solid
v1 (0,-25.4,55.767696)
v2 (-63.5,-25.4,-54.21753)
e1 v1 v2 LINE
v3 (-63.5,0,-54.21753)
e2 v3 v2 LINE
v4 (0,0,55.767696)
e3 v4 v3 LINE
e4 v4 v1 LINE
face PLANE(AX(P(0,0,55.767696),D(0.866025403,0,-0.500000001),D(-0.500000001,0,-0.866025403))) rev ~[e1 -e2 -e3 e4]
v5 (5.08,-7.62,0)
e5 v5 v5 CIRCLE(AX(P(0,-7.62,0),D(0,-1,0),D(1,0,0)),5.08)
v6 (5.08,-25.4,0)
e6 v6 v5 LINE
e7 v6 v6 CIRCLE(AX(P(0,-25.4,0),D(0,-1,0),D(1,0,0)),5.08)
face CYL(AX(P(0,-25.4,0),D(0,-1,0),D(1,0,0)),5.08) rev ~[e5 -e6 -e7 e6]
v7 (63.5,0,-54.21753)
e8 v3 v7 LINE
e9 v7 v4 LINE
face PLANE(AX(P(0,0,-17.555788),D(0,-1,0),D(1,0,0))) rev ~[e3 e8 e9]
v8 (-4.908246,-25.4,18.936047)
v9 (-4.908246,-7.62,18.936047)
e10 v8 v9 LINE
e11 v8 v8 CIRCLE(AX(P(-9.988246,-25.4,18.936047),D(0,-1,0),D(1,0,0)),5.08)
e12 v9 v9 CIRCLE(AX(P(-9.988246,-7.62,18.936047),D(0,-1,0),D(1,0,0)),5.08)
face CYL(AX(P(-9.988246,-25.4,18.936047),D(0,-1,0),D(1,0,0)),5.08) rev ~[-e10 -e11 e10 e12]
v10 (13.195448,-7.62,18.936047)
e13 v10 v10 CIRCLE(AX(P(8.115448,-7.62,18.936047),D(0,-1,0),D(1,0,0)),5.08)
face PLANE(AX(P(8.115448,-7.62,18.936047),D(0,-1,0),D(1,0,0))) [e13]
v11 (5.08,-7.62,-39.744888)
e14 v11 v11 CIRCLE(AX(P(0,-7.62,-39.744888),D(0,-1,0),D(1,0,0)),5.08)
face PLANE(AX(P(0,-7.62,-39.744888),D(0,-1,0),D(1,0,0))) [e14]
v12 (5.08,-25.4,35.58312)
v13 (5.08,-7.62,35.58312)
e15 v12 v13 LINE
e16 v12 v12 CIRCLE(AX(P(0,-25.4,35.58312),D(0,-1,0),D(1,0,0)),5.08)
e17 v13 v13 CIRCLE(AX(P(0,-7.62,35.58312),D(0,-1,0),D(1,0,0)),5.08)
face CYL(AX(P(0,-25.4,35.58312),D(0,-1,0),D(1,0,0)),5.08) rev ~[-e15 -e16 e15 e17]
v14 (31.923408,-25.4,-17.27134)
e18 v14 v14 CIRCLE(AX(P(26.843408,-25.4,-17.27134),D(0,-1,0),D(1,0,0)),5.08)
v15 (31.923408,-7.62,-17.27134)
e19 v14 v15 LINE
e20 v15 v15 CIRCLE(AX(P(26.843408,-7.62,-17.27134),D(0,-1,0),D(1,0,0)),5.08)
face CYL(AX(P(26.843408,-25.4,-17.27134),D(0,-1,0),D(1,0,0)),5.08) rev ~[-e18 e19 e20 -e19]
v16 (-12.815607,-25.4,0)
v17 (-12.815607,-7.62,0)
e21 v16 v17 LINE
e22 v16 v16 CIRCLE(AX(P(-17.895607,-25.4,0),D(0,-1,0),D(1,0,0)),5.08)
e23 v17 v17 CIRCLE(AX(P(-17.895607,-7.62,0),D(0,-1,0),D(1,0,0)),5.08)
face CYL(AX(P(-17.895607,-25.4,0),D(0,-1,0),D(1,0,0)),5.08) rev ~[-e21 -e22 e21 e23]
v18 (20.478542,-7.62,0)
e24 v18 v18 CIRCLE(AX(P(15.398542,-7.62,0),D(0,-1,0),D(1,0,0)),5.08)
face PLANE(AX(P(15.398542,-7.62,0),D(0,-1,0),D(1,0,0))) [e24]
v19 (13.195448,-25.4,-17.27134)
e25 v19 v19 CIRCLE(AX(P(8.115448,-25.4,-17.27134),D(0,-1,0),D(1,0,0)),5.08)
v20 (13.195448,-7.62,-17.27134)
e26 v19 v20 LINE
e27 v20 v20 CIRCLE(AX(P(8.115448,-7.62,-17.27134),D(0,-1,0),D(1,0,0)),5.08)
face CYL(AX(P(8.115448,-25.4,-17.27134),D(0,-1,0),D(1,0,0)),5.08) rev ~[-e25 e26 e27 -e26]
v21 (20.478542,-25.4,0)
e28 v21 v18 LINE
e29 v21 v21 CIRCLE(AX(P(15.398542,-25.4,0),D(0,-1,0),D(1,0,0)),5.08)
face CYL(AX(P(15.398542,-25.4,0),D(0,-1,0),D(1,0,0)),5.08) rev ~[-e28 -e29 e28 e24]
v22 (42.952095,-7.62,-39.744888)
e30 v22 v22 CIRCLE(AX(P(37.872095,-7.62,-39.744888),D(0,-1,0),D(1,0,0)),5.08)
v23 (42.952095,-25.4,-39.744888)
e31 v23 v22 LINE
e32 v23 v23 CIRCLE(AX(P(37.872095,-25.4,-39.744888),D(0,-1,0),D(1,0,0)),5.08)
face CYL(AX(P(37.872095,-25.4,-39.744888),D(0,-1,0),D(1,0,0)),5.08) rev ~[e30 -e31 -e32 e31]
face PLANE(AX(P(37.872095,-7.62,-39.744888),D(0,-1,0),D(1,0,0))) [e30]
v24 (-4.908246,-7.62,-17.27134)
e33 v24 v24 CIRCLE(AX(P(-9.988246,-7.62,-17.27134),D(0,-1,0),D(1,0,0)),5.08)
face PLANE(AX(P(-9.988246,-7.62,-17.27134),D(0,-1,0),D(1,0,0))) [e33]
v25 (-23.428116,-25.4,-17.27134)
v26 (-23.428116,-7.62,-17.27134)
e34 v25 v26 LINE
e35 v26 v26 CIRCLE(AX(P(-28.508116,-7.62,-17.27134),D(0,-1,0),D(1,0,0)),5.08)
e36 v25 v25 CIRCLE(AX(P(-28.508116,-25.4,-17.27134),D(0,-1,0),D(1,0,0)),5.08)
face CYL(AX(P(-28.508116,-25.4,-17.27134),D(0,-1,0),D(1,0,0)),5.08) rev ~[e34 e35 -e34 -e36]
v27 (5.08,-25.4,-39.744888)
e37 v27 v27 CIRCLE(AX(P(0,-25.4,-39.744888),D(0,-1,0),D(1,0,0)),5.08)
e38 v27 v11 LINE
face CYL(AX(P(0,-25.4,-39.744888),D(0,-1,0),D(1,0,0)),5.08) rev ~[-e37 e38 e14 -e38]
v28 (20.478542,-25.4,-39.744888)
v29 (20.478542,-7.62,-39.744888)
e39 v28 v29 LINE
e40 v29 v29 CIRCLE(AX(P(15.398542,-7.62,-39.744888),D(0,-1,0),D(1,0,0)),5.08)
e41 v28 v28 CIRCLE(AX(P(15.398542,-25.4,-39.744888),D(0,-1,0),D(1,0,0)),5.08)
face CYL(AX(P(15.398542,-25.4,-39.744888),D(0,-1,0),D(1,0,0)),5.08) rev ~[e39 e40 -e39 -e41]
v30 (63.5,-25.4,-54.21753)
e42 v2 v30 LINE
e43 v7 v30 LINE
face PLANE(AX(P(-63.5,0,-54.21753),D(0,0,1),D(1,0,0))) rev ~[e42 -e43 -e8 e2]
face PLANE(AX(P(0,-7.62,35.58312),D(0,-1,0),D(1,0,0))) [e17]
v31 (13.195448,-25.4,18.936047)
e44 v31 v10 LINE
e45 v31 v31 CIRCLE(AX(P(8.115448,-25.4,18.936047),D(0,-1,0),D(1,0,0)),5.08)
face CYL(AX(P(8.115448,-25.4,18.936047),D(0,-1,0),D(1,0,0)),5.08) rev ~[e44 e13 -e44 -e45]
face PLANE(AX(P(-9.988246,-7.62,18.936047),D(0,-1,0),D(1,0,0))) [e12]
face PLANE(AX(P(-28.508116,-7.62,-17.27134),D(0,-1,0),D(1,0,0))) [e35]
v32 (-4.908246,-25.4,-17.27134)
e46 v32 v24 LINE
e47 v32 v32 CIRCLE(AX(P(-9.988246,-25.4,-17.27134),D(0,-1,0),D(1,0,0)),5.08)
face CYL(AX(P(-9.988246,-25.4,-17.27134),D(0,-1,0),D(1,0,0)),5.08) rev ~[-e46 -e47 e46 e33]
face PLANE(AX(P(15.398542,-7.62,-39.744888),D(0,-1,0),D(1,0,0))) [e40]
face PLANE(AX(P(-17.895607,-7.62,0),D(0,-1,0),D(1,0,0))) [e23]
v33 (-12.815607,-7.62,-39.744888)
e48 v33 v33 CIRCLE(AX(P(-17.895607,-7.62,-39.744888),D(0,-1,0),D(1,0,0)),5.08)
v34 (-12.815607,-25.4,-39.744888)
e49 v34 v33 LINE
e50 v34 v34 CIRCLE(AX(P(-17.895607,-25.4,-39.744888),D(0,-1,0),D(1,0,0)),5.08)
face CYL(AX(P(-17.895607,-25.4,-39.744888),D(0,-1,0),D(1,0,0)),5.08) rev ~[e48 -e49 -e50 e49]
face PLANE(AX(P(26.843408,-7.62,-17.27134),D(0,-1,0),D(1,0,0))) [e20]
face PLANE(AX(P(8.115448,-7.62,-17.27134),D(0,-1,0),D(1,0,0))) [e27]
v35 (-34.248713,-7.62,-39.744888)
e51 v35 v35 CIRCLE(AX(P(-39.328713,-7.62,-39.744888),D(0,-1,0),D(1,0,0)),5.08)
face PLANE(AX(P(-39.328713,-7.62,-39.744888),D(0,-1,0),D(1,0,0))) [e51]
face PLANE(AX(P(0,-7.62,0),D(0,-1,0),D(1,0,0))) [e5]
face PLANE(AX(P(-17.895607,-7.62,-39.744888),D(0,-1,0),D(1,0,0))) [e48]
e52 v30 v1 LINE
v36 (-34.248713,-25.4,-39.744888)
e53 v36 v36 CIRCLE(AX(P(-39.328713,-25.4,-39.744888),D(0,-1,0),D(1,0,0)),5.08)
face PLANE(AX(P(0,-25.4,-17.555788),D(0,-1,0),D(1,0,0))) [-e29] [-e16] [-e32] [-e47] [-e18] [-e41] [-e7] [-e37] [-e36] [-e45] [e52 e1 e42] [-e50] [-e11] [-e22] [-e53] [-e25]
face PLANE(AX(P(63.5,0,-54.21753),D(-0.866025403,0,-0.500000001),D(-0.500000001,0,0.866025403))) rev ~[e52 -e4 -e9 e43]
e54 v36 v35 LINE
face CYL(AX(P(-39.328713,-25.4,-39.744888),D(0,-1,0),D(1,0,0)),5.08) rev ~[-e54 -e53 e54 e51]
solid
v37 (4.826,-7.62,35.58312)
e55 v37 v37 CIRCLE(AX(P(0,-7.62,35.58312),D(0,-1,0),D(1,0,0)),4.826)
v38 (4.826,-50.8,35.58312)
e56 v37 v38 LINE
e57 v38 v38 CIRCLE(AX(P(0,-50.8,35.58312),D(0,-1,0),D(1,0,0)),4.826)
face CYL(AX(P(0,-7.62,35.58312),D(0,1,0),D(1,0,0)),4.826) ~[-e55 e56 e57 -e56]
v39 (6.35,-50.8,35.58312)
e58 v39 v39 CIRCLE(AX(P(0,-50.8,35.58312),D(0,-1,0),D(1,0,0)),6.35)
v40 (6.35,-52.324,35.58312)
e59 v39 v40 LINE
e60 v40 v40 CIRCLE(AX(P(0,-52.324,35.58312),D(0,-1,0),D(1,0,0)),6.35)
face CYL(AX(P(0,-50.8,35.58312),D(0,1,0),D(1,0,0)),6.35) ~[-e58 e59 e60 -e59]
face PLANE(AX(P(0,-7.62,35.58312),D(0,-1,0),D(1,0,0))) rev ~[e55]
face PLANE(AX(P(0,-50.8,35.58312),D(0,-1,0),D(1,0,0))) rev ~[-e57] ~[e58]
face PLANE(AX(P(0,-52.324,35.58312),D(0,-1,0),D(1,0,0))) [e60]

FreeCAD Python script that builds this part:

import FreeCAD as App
import Part
import Sketcher
Q = App.Units.Quantity

doc = App.newDocument("Part")
body = doc.addObject("PartDesign::Body", "Body")

# Sketch on XZ plane
sketch1 = doc.addObject("Sketcher::SketchObject", "Sketch")
body.addObject(sketch1)
sketch1.AttachmentSupport = (doc.XZ_Plane, [""])
sketch1.MapMode = "FlatFace"
sketch1.addGeometry(Part.LineSegment(App.Vector(64, -54, 0), App.Vector(0, 56, 0)), False)
sketch1.addGeometry(Part.LineSegment(App.Vector(0, 56, 0), App.Vector(-64, -54, 0)), False)
sketch1.addGeometry(Part.LineSegment(App.Vector(-64, -54, 0), App.Vector(64, -54, 0)), False)
sketch1.addConstraint(Sketcher.Constraint("Coincident", 0, 2, 1, 1))
sketch1.addConstraint(Sketcher.Constraint("Coincident", 1, 2, 2, 1))
sketch1.addConstraint(Sketcher.Constraint("Coincident", 2, 2, 0, 1))
sketch1.addConstraint(Sketcher.Constraint("Horizontal", 2))
sketch1.addConstraint(Sketcher.Constraint("PointOnObject", 0, 2, -2))
sketch1.addConstraint(Sketcher.Constraint("Equal", 0, 1))
sketch1.addConstraint(Sketcher.Constraint("DistanceX", 2, 1, 2, 2, Q("5 in")))
sketch1.addConstraint(Sketcher.Constraint("Distance", 0, Q("5 in")))
sketch1.addConstraint(Sketcher.Constraint("DistanceY", 1, 2, -1, 1, 54.21753))
pad1 = doc.addObject("PartDesign::Pad", "Pad")
body.addObject(pad1)
pad1.Profile = sketch1
pad1.Length = Q("1 in")

# Sketch on XZ plane
sketch2 = doc.addObject("Sketcher::SketchObject", "Sketch001")
body.addObject(sketch2)
sketch2.AttachmentSupport = (doc.XZ_Plane, [""])
sketch2.MapMode = "FlatFace"
sketch2.AttachmentOffset = App.Placement(App.Vector(0, 0, 1 * 25.4), App.Rotation())
sketch2.addGeometry(Part.Circle(App.Vector(0, 36, 0), App.Vector(0, 0, 1), 5), False)
sketch2.addGeometry(Part.Circle(App.Vector(-10, 19, 0), App.Vector(0, 0, 1), 5), False)
sketch2.addGeometry(Part.Circle(App.Vector(8, 19, 0), App.Vector(0, 0, 1), 5), False)
sketch2.addGeometry(Part.Circle(App.Vector(-18, 0, 0), App.Vector(0, 0, 1), 5), False)
sketch2.addGeometry(Part.Circle(App.Vector(0, 0, 0), App.Vector(0, 0, 1), 5), False)
sketch2.addGeometry(Part.Circle(App.Vector(15, 0, 0), App.Vector(0, 0, 1), 5), False)
sketch2.addGeometry(Part.Circle(App.Vector(-29, -17, 0), App.Vector(0, 0, 1), 5), False)
sketch2.addGeometry(Part.Circle(App.Vector(-10, -17, 0), App.Vector(0, 0, 1), 5), False)
sketch2.addGeometry(Part.Circle(App.Vector(8, -17, 0), App.Vector(0, 0, 1), 5), False)
sketch2.addGeometry(Part.Circle(App.Vector(27, -17, 0), App.Vector(0, 0, 1), 5), False)
sketch2.addGeometry(Part.Circle(App.Vector(-39, -40, 0), App.Vector(0, 0, 1), 5), False)
sketch2.addGeometry(Part.Circle(App.Vector(-18, -40, 0), App.Vector(0, 0, 1), 5), False)
sketch2.addGeometry(Part.Circle(App.Vector(0, -40, 0), App.Vector(0, 0, 1), 5), False)
sketch2.addGeometry(Part.Circle(App.Vector(15, -40, 0), App.Vector(0, 0, 1), 5), False)
sketch2.addGeometry(Part.Circle(App.Vector(38, -40, 0), App.Vector(0, 0, 1), 5), False)
sketch2.addConstraint(Sketcher.Constraint("Coincident", 4, 3, -1, 1))
sketch2.addConstraint(Sketcher.Constraint("Equal", 0, 1))
sketch2.addConstraint(Sketcher.Constraint("Equal", 1, 2))
sketch2.addConstraint(Sketcher.Constraint("Equal", 2, 3))
sketch2.addConstraint(Sketcher.Constraint("Equal", 3, 4))
sketch2.addConstraint(Sketcher.Constraint("Equal", 4, 5))
sketch2.addConstraint(Sketcher.Constraint("Equal", 5, 6))
sketch2.addConstraint(Sketcher.Constraint("Equal", 6, 7))
sketch2.addConstraint(Sketcher.Constraint("Equal", 7, 8))
sketch2.addConstraint(Sketcher.Constraint("Equal", 8, 9))
sketch2.addConstraint(Sketcher.Constraint("Equal", 9, 10))
sketch2.addConstraint(Sketcher.Constraint("Equal", 10, 11))
sketch2.addConstraint(Sketcher.Constraint("Equal", 11, 12))
sketch2.addConstraint(Sketcher.Constraint("Equal", 12, 13))
sketch2.addConstraint(Sketcher.Constraint("Equal", 13, 14))
sketch2.addConstraint(Sketcher.Constraint("PointOnObject", 0, 3, -2))
sketch2.addConstraint(Sketcher.Constraint("PointOnObject", 3, 3, -1))
sketch2.addConstraint(Sketcher.Constraint("PointOnObject", 5, 3, -1))
sketch2.addConstraint(Sketcher.Constraint("PointOnObject", 12, 3, -2))
sketch2.addConstraint(Sketcher.Constraint("Horizontal", 1, 3, 2, 3))
sketch2.addConstraint(Sketcher.Constraint("Horizontal", 6, 3, 7, 3))
sketch2.addConstraint(Sketcher.Constraint("Horizontal", 7, 3, 8, 3))
sketch2.addConstraint(Sketcher.Constraint("Horizontal", 8, 3, 9, 3))
sketch2.addConstraint(Sketcher.Constraint("Horizontal", 10, 3, 11, 3))
sketch2.addConstraint(Sketcher.Constraint("Horizontal", 11, 3, 12, 3))
sketch2.addConstraint(Sketcher.Constraint("Horizontal", 12, 3, 13, 3))
sketch2.addConstraint(Sketcher.Constraint("Horizontal", 13, 3, 14, 3))
sketch2.addConstraint(Sketcher.Constraint("Vertical", 1, 3, 7, 3))
sketch2.addConstraint(Sketcher.Constraint("Vertical", 2, 3, 8, 3))
sketch2.addConstraint(Sketcher.Constraint("Vertical", 3, 3, 11, 3))
sketch2.addConstraint(Sketcher.Constraint("Vertical", 5, 3, 13, 3))
sketch2.addConstraint(Sketcher.Constraint("Diameter", 0, Q("0.4 in")))
sketch2.addConstraint(Sketcher.Constraint("DistanceY", -1, 1, 0, 3, 35.58312))
sketch2.addConstraint(Sketcher.Constraint("DistanceX", -1, 1, 2, 3, 8.115448))
sketch2.addConstraint(Sketcher.Constraint("DistanceY", 6, 3, -1, 1, 17.27134))
sketch2.addConstraint(Sketcher.Constraint("DistanceX", -1, 1, 9, 3, 26.843408))
sketch2.addConstraint(Sketcher.Constraint("DistanceY", 10, 3, -1, 1, 39.744888))
sketch2.addConstraint(Sketcher.Constraint("DistanceX", 3, 3, 1, 3, 7.907361))
sketch2.addConstraint(Sketcher.Constraint("DistanceX", 1, 3, 5, 3, 25.386788))
sketch2.addConstraint(Sketcher.Constraint("DistanceX", 6, 3, 3, 3, 10.612509))
sketch2.addConstraint(Sketcher.Constraint("DistanceX", 10, 3, 8, 3, 47.444161))
sketch2.addConstraint(Sketcher.Constraint("DistanceX", 1, 3, -1, 1, 9.988246))
sketch2.addConstraint(Sketcher.Constraint("DistanceY", -1, 1, 1, 3, 18.936047))
sketch2.addConstraint(Sketcher.Constraint("DistanceX", -1, 1, 14, 3, 37.872095))
pocket1 = doc.addObject("PartDesign::Pocket", "Pocket")
body.addObject(pocket1)
pocket1.Profile = sketch2
pocket1.Length = Q("0.7 in")
body2 = doc.addObject("PartDesign::Body", "Body001")

# Sketch on XZ plane
sketch3 = doc.addObject("Sketcher::SketchObject", "Sketch002")
body2.addObject(sketch3)
sketch3.AttachmentSupport = (doc.getObject("XZ_Plane001"), [""])
sketch3.MapMode = "FlatFace"
sketch3.AttachmentOffset = App.Placement(App.Vector(0, 0, 0.3 * 25.4), App.Rotation())
sketch3.addGeometry(Part.Circle(App.Vector(0, 35.6, 0), App.Vector(0, 0, 1), 4.8), False)
sketch3.addConstraint(Sketcher.Constraint("PointOnObject", 0, 3, -2))
sketch3.addConstraint(Sketcher.Constraint("Diameter", 0, Q("0.38 in")))
sketch3.addConstraint(Sketcher.Constraint("DistanceY", -1, 1, 0, 3, 35.58312))
pad2 = doc.addObject("PartDesign::Pad", "Pad001")
body2.addObject(pad2)
pad2.Profile = sketch3
pad2.Length = Q("1.7 in")

# Sketch on XZ plane
sketch4 = doc.addObject("Sketcher::SketchObject", "Sketch003")
body2.addObject(sketch4)
sketch4.AttachmentSupport = (doc.getObject("XZ_Plane001"), [""])
sketch4.MapMode = "FlatFace"
sketch4.AttachmentOffset = App.Placement(App.Vector(0, 0, 2 * 25.4), App.Rotation())
sketch4.addGeometry(Part.Circle(App.Vector(0, 36, 0), App.Vector(0, 0, 1), 6), False)
sketch4.addConstraint(Sketcher.Constraint("PointOnObject", 0, 3, -2))
sketch4.addConstraint(Sketcher.Constraint("Diameter", 0, Q("0.5 in")))
sketch4.addConstraint(Sketcher.Constraint("DistanceY", -1, 1, 0, 3, 35.58312))
pad3 = doc.addObject("PartDesign::Pad", "Pad002")
body2.addObject(pad3)
pad3.Profile = sketch4
pad3.Length = Q("0.06 in")

doc.recompute()
